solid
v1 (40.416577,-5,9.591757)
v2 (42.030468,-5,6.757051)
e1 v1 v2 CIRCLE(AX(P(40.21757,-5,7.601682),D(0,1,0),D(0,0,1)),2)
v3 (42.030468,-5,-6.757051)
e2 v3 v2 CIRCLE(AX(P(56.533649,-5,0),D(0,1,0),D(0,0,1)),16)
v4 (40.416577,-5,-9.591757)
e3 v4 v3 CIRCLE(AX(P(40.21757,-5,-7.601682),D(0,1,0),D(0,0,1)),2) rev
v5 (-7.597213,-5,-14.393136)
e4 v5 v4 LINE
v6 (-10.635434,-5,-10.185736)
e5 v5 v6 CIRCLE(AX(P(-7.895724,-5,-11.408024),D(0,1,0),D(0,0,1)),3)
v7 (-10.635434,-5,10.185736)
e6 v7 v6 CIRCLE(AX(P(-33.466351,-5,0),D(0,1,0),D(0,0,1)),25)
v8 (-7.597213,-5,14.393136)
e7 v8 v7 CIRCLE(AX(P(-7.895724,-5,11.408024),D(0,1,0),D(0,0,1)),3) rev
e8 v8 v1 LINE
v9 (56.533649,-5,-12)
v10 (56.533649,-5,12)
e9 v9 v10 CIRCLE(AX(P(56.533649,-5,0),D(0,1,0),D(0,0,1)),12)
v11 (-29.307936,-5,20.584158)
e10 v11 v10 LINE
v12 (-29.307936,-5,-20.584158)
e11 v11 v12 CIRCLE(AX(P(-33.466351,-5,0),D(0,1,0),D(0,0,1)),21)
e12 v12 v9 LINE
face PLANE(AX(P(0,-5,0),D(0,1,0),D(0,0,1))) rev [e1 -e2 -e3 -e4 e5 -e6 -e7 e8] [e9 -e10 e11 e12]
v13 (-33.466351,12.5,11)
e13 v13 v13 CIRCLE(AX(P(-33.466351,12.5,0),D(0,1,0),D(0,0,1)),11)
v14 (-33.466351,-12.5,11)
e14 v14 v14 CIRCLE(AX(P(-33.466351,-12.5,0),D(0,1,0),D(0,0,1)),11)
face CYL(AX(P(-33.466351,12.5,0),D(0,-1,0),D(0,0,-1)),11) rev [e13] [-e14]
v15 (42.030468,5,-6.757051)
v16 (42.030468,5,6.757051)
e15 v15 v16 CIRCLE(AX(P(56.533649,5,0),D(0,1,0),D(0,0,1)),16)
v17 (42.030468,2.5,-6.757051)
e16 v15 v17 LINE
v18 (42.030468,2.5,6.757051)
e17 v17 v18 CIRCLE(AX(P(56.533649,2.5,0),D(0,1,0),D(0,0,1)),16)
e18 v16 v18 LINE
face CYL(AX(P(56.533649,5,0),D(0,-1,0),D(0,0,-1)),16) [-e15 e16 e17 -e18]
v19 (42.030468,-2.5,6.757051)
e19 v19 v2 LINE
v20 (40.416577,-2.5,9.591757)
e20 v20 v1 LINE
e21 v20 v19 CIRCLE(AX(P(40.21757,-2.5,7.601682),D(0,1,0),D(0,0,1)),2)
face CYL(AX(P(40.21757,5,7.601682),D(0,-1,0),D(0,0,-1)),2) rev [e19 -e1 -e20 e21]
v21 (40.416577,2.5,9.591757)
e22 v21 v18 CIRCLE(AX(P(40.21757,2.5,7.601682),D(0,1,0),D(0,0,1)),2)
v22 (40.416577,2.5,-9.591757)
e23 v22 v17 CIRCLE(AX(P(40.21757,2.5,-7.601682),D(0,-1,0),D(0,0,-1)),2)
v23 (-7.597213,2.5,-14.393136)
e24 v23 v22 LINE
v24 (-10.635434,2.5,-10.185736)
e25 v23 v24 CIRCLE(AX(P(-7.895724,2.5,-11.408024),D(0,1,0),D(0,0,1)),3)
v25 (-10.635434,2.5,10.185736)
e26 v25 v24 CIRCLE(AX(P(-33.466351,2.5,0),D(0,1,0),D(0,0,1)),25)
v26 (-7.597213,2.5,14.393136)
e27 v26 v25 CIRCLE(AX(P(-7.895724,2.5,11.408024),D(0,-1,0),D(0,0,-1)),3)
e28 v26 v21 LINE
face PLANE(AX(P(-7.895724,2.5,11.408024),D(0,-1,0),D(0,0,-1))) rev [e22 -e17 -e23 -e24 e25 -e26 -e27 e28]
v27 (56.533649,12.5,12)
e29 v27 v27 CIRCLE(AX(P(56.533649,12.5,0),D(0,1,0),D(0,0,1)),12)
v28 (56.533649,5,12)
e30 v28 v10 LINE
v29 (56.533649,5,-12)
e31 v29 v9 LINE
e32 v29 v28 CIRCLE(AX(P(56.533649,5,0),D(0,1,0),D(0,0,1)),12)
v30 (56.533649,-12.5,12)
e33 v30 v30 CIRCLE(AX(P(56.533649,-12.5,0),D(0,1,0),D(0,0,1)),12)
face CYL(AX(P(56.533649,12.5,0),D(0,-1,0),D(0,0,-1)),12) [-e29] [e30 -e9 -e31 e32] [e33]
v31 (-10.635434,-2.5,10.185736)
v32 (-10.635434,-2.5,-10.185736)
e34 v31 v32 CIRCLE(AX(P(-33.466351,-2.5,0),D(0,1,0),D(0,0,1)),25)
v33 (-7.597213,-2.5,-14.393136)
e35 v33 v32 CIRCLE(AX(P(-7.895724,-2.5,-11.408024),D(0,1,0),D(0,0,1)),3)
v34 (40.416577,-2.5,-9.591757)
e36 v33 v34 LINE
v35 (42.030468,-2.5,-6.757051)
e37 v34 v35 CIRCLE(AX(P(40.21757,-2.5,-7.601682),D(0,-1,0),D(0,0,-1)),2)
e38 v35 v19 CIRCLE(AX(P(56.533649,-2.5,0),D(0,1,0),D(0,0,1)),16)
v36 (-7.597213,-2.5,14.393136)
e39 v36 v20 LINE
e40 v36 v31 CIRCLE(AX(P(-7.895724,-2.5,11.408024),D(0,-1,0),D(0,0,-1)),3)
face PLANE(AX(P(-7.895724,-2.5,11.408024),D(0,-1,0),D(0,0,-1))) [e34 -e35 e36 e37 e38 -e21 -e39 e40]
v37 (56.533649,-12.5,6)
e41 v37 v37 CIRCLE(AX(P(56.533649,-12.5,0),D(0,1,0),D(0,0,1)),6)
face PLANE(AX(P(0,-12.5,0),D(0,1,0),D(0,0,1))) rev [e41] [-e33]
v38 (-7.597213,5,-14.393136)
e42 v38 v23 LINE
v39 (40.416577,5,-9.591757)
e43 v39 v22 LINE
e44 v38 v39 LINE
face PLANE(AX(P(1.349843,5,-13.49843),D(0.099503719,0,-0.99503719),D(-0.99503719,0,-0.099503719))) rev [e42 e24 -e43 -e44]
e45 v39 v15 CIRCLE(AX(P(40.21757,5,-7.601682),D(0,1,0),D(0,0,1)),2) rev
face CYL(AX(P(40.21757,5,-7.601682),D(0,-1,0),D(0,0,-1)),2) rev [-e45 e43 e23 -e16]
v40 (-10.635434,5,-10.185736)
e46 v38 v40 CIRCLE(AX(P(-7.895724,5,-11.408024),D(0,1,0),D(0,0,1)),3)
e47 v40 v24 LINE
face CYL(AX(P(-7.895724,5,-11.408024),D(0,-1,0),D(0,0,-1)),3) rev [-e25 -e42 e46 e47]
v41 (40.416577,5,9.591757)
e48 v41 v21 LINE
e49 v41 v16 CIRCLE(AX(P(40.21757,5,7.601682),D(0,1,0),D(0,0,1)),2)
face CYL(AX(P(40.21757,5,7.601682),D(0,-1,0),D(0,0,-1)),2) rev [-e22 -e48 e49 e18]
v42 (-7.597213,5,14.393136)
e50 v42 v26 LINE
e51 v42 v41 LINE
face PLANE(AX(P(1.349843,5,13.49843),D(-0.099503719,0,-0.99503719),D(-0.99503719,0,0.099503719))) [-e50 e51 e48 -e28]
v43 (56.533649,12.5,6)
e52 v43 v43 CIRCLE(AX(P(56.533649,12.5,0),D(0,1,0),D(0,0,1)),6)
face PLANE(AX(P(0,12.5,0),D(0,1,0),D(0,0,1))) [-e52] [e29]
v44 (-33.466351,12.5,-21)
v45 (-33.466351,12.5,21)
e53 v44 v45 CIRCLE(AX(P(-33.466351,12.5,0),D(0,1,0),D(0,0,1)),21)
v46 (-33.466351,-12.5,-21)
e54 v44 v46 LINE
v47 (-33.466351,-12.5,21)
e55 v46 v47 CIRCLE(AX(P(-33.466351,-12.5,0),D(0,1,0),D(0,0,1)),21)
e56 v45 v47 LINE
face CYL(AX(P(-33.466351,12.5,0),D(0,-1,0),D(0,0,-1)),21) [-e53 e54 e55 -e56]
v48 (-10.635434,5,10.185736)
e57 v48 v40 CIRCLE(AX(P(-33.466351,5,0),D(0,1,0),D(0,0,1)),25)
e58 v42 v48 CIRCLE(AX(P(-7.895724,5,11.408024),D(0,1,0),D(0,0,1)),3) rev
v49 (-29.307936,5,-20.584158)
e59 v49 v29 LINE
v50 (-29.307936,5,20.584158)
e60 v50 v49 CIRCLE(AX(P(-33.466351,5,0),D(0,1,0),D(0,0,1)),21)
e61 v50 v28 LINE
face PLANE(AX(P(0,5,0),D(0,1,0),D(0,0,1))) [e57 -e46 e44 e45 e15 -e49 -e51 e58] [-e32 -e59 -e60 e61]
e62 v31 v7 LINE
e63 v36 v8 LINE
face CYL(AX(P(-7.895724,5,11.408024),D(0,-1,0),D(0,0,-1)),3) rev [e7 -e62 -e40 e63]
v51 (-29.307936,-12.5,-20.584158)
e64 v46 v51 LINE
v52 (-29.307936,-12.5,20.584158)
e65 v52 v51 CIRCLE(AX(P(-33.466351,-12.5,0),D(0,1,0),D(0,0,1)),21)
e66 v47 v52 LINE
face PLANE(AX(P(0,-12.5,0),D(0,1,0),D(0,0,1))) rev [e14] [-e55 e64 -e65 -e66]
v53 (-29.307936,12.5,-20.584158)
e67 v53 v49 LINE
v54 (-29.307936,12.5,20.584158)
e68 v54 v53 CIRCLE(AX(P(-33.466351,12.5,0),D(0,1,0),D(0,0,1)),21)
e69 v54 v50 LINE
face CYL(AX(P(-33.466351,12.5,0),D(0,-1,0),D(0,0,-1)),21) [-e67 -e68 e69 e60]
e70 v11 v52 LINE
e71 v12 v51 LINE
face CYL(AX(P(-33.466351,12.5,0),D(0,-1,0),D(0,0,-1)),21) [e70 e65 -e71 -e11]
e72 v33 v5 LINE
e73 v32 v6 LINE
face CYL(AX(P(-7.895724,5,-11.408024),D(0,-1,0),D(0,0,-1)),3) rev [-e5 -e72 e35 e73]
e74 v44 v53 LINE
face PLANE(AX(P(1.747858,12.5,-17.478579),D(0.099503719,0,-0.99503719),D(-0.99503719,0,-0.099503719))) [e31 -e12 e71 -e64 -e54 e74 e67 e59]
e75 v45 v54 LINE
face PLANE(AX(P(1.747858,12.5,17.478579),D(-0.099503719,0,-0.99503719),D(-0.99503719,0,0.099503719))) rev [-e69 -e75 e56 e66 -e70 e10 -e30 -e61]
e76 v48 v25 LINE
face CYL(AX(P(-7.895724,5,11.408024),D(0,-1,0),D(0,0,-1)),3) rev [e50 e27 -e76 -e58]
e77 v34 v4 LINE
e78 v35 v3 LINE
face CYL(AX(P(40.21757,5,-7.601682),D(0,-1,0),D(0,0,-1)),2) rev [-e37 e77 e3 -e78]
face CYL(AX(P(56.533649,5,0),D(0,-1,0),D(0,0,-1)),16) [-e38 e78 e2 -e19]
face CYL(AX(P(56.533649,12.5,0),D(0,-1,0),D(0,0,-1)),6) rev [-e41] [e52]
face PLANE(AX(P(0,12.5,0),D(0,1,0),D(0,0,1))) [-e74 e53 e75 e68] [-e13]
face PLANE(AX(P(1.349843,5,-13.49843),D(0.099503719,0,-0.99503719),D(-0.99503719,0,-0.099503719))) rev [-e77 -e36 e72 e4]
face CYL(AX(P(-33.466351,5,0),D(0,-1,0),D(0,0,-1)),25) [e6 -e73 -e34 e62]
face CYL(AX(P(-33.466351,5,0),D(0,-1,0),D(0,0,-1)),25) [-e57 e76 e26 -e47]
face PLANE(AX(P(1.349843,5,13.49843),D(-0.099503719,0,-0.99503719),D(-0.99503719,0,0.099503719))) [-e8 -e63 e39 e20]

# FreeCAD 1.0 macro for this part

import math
import FreeCAD as App
import Part
import Sketcher
from FreeCAD import Vector

doc = App.newDocument("Part")
body = doc.addObject("PartDesign::Body", "Body")

sketch1 = doc.addObject("Sketcher::SketchObject", "Sketch")
body.addObject(sketch1)
sketch1.AttachmentSupport = (doc.XZ_Plane, [""])
sketch1.MapMode = "FlatFace"
sketch1.addGeometry([
    Part.ArcOfCircle(Part.Circle(Vector(-33.5, 0, 0), Vector(0, 0, 1), 21), math.radians(90), math.radians(270)),
    Part.LineSegment(Vector(-33.5, 21, 0), Vector(-29.3, 20.6, 0)),
    Part.ArcOfCircle(Part.Circle(Vector(-33.5, 0, 0), Vector(0, 0, 1), 21), math.radians(0), math.radians(79)),
    Part.ArcOfCircle(Part.Circle(Vector(-33.5, 0, 0), Vector(0, 0, 1), 21), math.radians(-79), math.radians(0)),
    Part.LineSegment(Vector(-29.3, -20.6, 0), Vector(-33.5, -21, 0)),
    Part.Circle(Vector(-33.5, 0, 0), Vector(0, 0, 1), 11),
], False)
sketch1.addConstraint([
    Sketcher.Constraint("Coincident", 0, 1, 1, 1),
    Sketcher.Constraint("Coincident", 1, 2, 2, 2),
    Sketcher.Constraint("Tangent", 2, 1, 3, 2),
    Sketcher.Constraint("Coincident", 3, 1, 4, 1),
    Sketcher.Constraint("Coincident", 4, 2, 0, 2),
    Sketcher.Constraint("Coincident", 2, 3, 0, 3),
    Sketcher.Constraint("Coincident", 5, 3, 0, 3),
    Sketcher.Constraint("Equal", 0, 2),
    Sketcher.Constraint("Equal", 2, 3),
    Sketcher.Constraint("Symmetric", 1, 2, 3, 1, -1),
    Sketcher.Constraint("PointOnObject", 2, 1, -1),
    Sketcher.Constraint("Vertical", 5, 3, 0, 1),
    Sketcher.Constraint("Vertical", 0, 1, 4, 2),
    Sketcher.Constraint("Diameter", 5, 22.0),
    Sketcher.Constraint("Radius", 0, 21.0),
    Sketcher.Constraint("DistanceX", 0, 3, -1, 1, 33.466351),
    Sketcher.Constraint("DistanceY", -1, 1, 1, 2, 20.584158),
])
pad1 = doc.addObject("PartDesign::Pad", "Pad")
body.addObject(pad1)
pad1.Profile = sketch1
pad1.Length = 25
pad1.Midplane = True
body2 = doc.addObject("PartDesign::Body", "Body001")

sketch2 = doc.addObject("Sketcher::SketchObject", "Sketch001")
body2.addObject(sketch2)
sketch2.AttachmentSupport = (doc.getObject("XZ_Plane001"), [""])
sketch2.MapMode = "FlatFace"
sketch2.addGeometry([
    Part.Circle(Vector(57, 0, 0), Vector(0, 0, 1), 12),
    Part.Circle(Vector(57, 0, 0), Vector(0, 0, 1), 6),
], False)
sketch2.addConstraint([
    Sketcher.Constraint("Coincident", 1, 3, 0, 3),
    Sketcher.Constraint("PointOnObject", 0, 3, -1),
    Sketcher.Constraint("Diameter", 0, 24.0),
    Sketcher.Constraint("Diameter", 1, 12.0),
    Sketcher.Constraint("DistanceX", -1, 1, 0, 3, 56.533649),
])
pad2 = doc.addObject("PartDesign::Pad", "Pad001")
body2.addObject(pad2)
pad2.Profile = sketch2
pad2.Length = 25
pad2.Midplane = True
body.AllowCompound = True
doc.recompute()

boolean = doc.addObject("PartDesign::Boolean", "Boolean")
body.addObject(boolean)
boolean.Type = "Fuse"
boolean.addObjects([body2])

sketch3 = doc.addObject("Sketcher::SketchObject", "Sketch002")
body.addObject(sketch3)
sketch3.AttachmentSupport = (doc.XZ_Plane, [""])
sketch3.MapMode = "FlatFace"
sketch3.addGeometry([
    Part.ArcOfCircle(Part.Circle(Vector(-33.5, 0, 0), Vector(0, 0, 1), 21), math.radians(0), math.radians(79)),
    Part.LineSegment(Vector(-29.3, 20.6, 0), Vector(56.5, 12, 0)),
    Part.ArcOfCircle(Part.Circle(Vector(56.5, 0, 0), Vector(0, 0, 1), 12), math.radians(90), math.radians(270)),
    Part.LineSegment(Vector(56.5, -12, 0), Vector(-29.3, -20.6, 0)),
    Part.ArcOfCircle(Part.Circle(Vector(-33.5, 0, 0), Vector(0, 0, 1), 21), math.radians(-79), math.radians(0)),
    Part.ArcOfCircle(Part.Circle(Vector(-33.5, 0, 0), Vector(0, 0, 1), 25), math.radians(-24), math.radians(24)),
    Part.ArcOfCircle(Part.Circle(Vector(-7.9, -11.4, 0), Vector(0, 0, 1), 3), math.radians(156), math.radians(276)),
    Part.LineSegment(Vector(-7.6, -14.4, 0), Vector(40.4, -9.6, 0)),
    Part.ArcOfCircle(Part.Circle(Vector(40.2, -7.6, 0), Vector(0, 0, 1), 2), math.radians(-84), math.radians(25)),
    Part.ArcOfCircle(Part.Circle(Vector(56.5, 0, 0), Vector(0, 0, 1), 16), math.radians(155), math.radians(205)),
    Part.ArcOfCircle(Part.Circle(Vector(40.2, 7.6, 0), Vector(0, 0, 1), 2), math.radians(-25), math.radians(84)),
    Part.LineSegment(Vector(40.4, 9.6, 0), Vector(-7.6, 14.4, 0)),
    Part.ArcOfCircle(Part.Circle(Vector(-7.9, 11.4, 0), Vector(0, 0, 1), 3), math.radians(84), math.radians(204)),
], False)
sketch3.addConstraint([
    Sketcher.Constraint("Coincident", 0, 2, 1, 1),
    Sketcher.Constraint("Coincident", 1, 2, 2, 1),
    Sketcher.Constraint("Coincident", 2, 2, 3, 1),
    Sketcher.Constraint("Coincident", 3, 2, 4, 1),
    Sketcher.Constraint("Tangent", 4, 2, 0, 1),
    Sketcher.Constraint("Tangent", 5, 1, 6, 1),
    Sketcher.Constraint("Tangent", 6, 2, 7, 1),
    Sketcher.Constraint("Tangent", 7, 2, 8, 1),
    Sketcher.Constraint("Tangent", 8, 2, 9, 2),
    Sketcher.Constraint("Tangent", 9, 1, 10, 1),
    Sketcher.Constraint("Tangent", 10, 2, 11, 1),
    Sketcher.Constraint("Tangent", 11, 2, 12, 1),
    Sketcher.Constraint("Tangent", 12, 2, 5, 2),
    Sketcher.Constraint("Coincident", 5, 3, 0, 3),
    Sketcher.Constraint("Coincident", 9, 3, 2, 3),
    Sketcher.Constraint("Equal", 0, 4),
    Sketcher.Constraint("Equal", 8, 10),
    Sketcher.Constraint("Equal", 6, 12),
    Sketcher.Constraint("Symmetric", 8, 3, 10, 3, -1),
    Sketcher.Constraint("Symmetric", 6, 3, 12, 3, -1),
    Sketcher.Constraint("PointOnObject", 4, 2, -1),
    Sketcher.Constraint("Parallel", 3, 7),
    Sketcher.Constraint("Parallel", 1, 11),
    Sketcher.Constraint("Vertical", 9, 3, 1, 2),
    Sketcher.Constraint("Vertical", 1, 2, 2, 2),
    Sketcher.Constraint("Radius", 0, 21.0),
    Sketcher.Constraint("Radius", 2, 12.0),
    Sketcher.Constraint("Radius", 5, 25.0),
    Sketcher.Constraint("Radius", 6, 3.0),
    Sketcher.Constraint("Radius", 8, 2.0),
    Sketcher.Constraint("Radius", 9, 16.0),
    Sketcher.Constraint("DistanceX", 0, 3, 2, 3, 90.0),
    Sketcher.Constraint("DistanceX", 3, 2, 5, 1, 18.672501),
    Sketcher.Constraint("DistanceY", 12, 2, 11, 2, 4.2074),
    Sketcher.Constraint("DistanceX", 0, 3, -1, 1, 33.466351),
])
pad3 = doc.addObject("PartDesign::Pad", "Pad002")
body.addObject(pad3)
pad3.Profile = sketch3
pad3.Length = 10
pad3.Midplane = True

sketch4 = doc.addObject("Sketcher::SketchObject", "Sketch003")
body.addObject(sketch4)
sketch4.AttachmentSupport = (doc.XZ_Plane, [""])
sketch4.MapMode = "FlatFace"
sketch4.addGeometry([
    Part.LineSegment(Vector(40.4, -9.6, 0), Vector(-7.6, -14.4, 0)),
    Part.ArcOfCircle(Part.Circle(Vector(-7.9, -11.4, 0), Vector(0, 0, 1), 3), math.radians(156), math.radians(276)),
    Part.ArcOfCircle(Part.Circle(Vector(-33.5, 0, 0), Vector(0, 0, 1), 25), math.radians(-24), math.radians(24)),
    Part.ArcOfCircle(Part.Circle(Vector(-7.9, 11.4, 0), Vector(0, 0, 1), 3), math.radians(84), math.radians(204)),
    Part.LineSegment(Vector(-7.6, 14.4, 0), Vector(40.4, 9.6, 0)),
    Part.ArcOfCircle(Part.Circle(Vector(40.2, 7.6, 0), Vector(0, 0, 1), 2), math.radians(-25), math.radians(84)),
    Part.ArcOfCircle(Part.Circle(Vector(56.5, 0, 0), Vector(0, 0, 1), 16), math.radians(155), math.radians(205)),
    Part.ArcOfCircle(Part.Circle(Vector(40.2, -7.6, 0), Vector(0, 0, 1), 2), math.radians(-84), math.radians(25)),
], False)
sketch4.addConstraint([
    Sketcher.Constraint("Tangent", 0, 2, 1, 2),
    Sketcher.Constraint("Tangent", 1, 1, 2, 1),
    Sketcher.Constraint("Tangent", 2, 2, 3, 2),
    Sketcher.Constraint("Tangent", 3, 1, 4, 1),
    Sketcher.Constraint("Tangent", 4, 2, 5, 2),
    Sketcher.Constraint("Tangent", 5, 1, 6, 1),
    Sketcher.Constraint("Tangent", 6, 2, 7, 2),
    Sketcher.Constraint("Tangent", 7, 1, 0, 1),
    Sketcher.Constraint("Equal", 1, 3),
    Sketcher.Constraint("Equal", 5, 7),
    Sketcher.Constraint("Symmetric", 1, 3, 3, 3, -1),
    Sketcher.Constraint("Symmetric", 5, 3, 7, 3, -1),
    Sketcher.Constraint("Radius", 1, 3.0),
    Sketcher.Constraint("Radius", 2, 25.0),
    Sketcher.Constraint("Radius", 5, 2.0),
    Sketcher.Constraint("Radius", 6, 16.0),
    Sketcher.Constraint("DistanceX", 2, 3, 6, 3, 90.0),
    Sketcher.Constraint("DistanceY", 0, 2, 1, 1, 4.2074),
    Sketcher.Constraint("DistanceX", 3, 3, 4, 2, 48.312301),
    Sketcher.Constraint("DistanceX", 2, 3, -1, 1, 33.466351),
])
pad4 = doc.addObject("PartDesign::Pad", "Pad003")
body.addObject(pad4)
pad4.Profile = sketch4
pad4.Length = 5
pad4.Midplane = True

doc.recompute()
